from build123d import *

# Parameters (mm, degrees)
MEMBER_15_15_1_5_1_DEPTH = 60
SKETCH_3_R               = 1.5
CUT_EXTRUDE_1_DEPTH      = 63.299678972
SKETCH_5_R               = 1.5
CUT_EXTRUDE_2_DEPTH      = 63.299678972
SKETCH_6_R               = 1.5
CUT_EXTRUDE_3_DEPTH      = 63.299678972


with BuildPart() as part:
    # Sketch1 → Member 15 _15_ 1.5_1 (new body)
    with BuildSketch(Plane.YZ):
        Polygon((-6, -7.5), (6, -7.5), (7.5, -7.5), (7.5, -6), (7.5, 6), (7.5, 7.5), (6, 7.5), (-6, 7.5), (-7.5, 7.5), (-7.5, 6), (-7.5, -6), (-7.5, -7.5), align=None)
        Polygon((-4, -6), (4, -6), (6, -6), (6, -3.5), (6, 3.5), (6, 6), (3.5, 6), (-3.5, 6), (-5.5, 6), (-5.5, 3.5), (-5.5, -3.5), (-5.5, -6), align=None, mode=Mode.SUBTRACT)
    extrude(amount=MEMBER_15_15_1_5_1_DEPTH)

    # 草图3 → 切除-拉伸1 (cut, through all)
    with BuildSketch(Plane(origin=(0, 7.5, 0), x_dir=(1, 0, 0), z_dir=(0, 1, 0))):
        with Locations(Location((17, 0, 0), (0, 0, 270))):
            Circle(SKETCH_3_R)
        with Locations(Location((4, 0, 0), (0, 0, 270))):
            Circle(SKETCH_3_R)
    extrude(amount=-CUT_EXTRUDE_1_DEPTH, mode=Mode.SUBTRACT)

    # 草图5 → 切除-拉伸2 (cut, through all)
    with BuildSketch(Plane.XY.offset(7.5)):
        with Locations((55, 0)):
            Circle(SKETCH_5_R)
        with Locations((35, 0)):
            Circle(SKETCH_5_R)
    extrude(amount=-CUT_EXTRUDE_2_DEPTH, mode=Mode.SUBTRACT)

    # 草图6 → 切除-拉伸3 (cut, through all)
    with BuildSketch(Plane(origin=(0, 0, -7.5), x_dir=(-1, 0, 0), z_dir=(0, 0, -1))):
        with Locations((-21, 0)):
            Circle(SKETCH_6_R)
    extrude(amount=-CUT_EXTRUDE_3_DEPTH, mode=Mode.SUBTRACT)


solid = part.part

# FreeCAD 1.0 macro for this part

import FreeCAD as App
import Part
import Sketcher
from FreeCAD import Vector
Q = App.Units.Quantity


def add_polygon(sketch, points):
    """Adds a closed chain of lines whose ends are joined by coincident constraints."""
    first, n = sketch.GeometryCount, len(points)
    for a, b in zip(points, points[1:] + points[:1]):
        sketch.addGeometry(Part.LineSegment(App.Vector(*a, 0), App.Vector(*b, 0)), False)
    for i in range(n):
        sketch.addConstraint(Sketcher.Constraint("Coincident", first + i, 2, first + (i + 1) % n, 1))

doc = App.newDocument("Part")
params = doc.addObject("Spreadsheet::Sheet", "Params")
for row, (alias, value) in enumerate([
    ("sketch1_width", "15 mm"),
    ("sketch1_height", "12 mm"),
    ("sketch1_width2", "11.5 mm"),
    ("pad1_length", "60 mm"),
    ("sketch2_diameter", "3 mm"),
    ("sketch3_diameter", "3 mm"),
    ("sketch4_diameter", "3 mm"),
], start=1):
    params.set(f"A{row}", alias)
    params.set(f"B{row}", "=" + value)
    params.setAlias(f"B{row}", alias)

body = doc.addObject("PartDesign::Body", "Body")

# Sketch on YZ plane
sketch1 = body.newObject("Sketcher::SketchObject", "Sketch")
sketch1.AttachmentSupport = (doc.getObject("YZ_Plane"), [""])
sketch1.MapMode = "FlatFace"
add_polygon(sketch1, [(7.5, -7.5), (7.5, 7.5), (-7.5, 7.5), (-7.5, -7.5)])  # lines 0-3
add_polygon(sketch1, [(6, -6), (-5.5, -6), (-5.5, 6), (6, 6)])  # lines 4-7
sketch1.addConstraint(Sketcher.Constraint("Vertical", 0))
sketch1.addConstraint(Sketcher.Constraint("Horizontal", 1))
sketch1.addConstraint(Sketcher.Constraint("Vertical", 2))
sketch1.addConstraint(Sketcher.Constraint("Horizontal", 3))
sketch1.addConstraint(Sketcher.Constraint("Horizontal", 4))
sketch1.addConstraint(Sketcher.Constraint("Vertical", 5))
sketch1.addConstraint(Sketcher.Constraint("Horizontal", 6))
sketch1.addConstraint(Sketcher.Constraint("Vertical", 7))
sketch1.addConstraint(Sketcher.Constraint("Symmetric", 0, 2, 2, 2, -1, 1))
sketch1.addConstraint(Sketcher.Constraint("Equal", 3, 0))
sketch1.addConstraint(Sketcher.Constraint("DistanceX", 1, 2, 1, 1, Q("15 mm")))
sketch1.addConstraint(Sketcher.Constraint("DistanceY", 5, 1, 5, 2, Q("12 mm")))
sketch1.addConstraint(Sketcher.Constraint("DistanceX", 4, 2, 4, 1, Q("11.5 mm")))
sketch1.addConstraint(Sketcher.Constraint("DistanceY", 4, 2, -1, 1, Q("6 mm")))
sketch1.addConstraint(Sketcher.Constraint("DistanceX", -1, 1, 6, 2, Q("6 mm")))
sketch1.setExpression("Constraints[18]", "Params.sketch1_width")
sketch1.setExpression("Constraints[19]", "Params.sketch1_height")
sketch1.setExpression("Constraints[20]", "Params.sketch1_width2")
pad1 = body.newObject("PartDesign::Pad", "Pad")
pad1.Profile = sketch1
pad1.setExpression("Length", "Params.pad1_length")

# Sketch on XZ plane
sketch2 = body.newObject("Sketcher::SketchObject", "Sketch001")
sketch2.AttachmentSupport = (doc.getObject("XZ_Plane"), [""])
sketch2.MapMode = "FlatFace"
sketch2.AttachmentOffset = App.Placement(Vector(0, 0, -7.5), App.Rotation())
sketch2.addGeometry(Part.Circle(Vector(17, 0, 0), Vector(0, 0, 1), 1.5), False)
sketch2.addGeometry(Part.Circle(Vector(4, 0, 0), Vector(0, 0, 1), 1.5), False)
sketch2.addConstraint(Sketcher.Constraint("Equal", 0, 1))
sketch2.addConstraint(Sketcher.Constraint("PointOnObject", 0, 3, -1))
sketch2.addConstraint(Sketcher.Constraint("PointOnObject", 1, 3, -1))
sketch2.addConstraint(Sketcher.Constraint("Diameter", 0, Q("3 mm")))
sketch2.addConstraint(Sketcher.Constraint("DistanceX", -1, 1, 0, 3, Q("17 mm")))
sketch2.addConstraint(Sketcher.Constraint("DistanceX", -1, 1, 1, 3, Q("4 mm")))
sketch2.setExpression("Constraints[3]", "Params.sketch2_diameter")
pocket1 = body.newObject("PartDesign::Pocket", "Pocket")
pocket1.Profile = sketch2
pocket1.Type = "ThroughAll"
pocket1.Reversed = True

# Sketch on XY plane
sketch3 = body.newObject("Sketcher::SketchObject", "Sketch002")
sketch3.AttachmentSupport = (doc.getObject("XY_Plane"), [""])
sketch3.MapMode = "FlatFace"
sketch3.AttachmentOffset = App.Placement(Vector(0, 0, 7.5), App.Rotation())
sketch3.addGeometry(Part.Circle(Vector(55, 0, 0), Vector(0, 0, 1), 1.5), False)
sketch3.addGeometry(Part.Circle(Vector(35, 0, 0), Vector(0, 0, 1), 1.5), False)
sketch3.addConstraint(Sketcher.Constraint("Equal", 0, 1))
sketch3.addConstraint(Sketcher.Constraint("PointOnObject", 0, 3, -1))
sketch3.addConstraint(Sketcher.Constraint("PointOnObject", 1, 3, -1))
sketch3.addConstraint(Sketcher.Constraint("Diameter", 0, Q("3 mm")))
sketch3.addConstraint(Sketcher.Constraint("DistanceX", -1, 1, 0, 3, Q("55 mm")))
sketch3.addConstraint(Sketcher.Constraint("DistanceX", -1, 1, 1, 3, Q("35 mm")))
sketch3.setExpression("Constraints[3]", "Params.sketch3_diameter")
pocket2 = body.newObject("PartDesign::Pocket", "Pocket001")
pocket2.Profile = sketch3
pocket2.Type = "ThroughAll"

# Sketch on XY plane
sketch4 = body.newObject("Sketcher::SketchObject", "Sketch003")
sketch4.AttachmentSupport = (doc.getObject("XY_Plane"), [""])
sketch4.MapMode = "FlatFace"
sketch4.AttachmentOffset = App.Placement(Vector(0, 0, -7.5), App.Rotation())
sketch4.addGeometry(Part.Circle(Vector(21, 0, 0), Vector(0, 0, 1), 1.5), False)
sketch4.addConstraint(Sketcher.Constraint("PointOnObject", 0, 3, -1))
sketch4.addConstraint(Sketcher.Constraint("Diameter", 0, Q("3 mm")))
sketch4.addConstraint(Sketcher.Constraint("DistanceX", -1, 1, 0, 3, Q("21 mm")))
sketch4.setExpression("Constraints[1]", "Params.sketch4_diameter")
pocket3 = body.newObject("PartDesign::Pocket", "Pocket002")
pocket3.Profile = sketch4
pocket3.Type = "ThroughAll"
pocket3.Reversed = True

doc.recompute()
